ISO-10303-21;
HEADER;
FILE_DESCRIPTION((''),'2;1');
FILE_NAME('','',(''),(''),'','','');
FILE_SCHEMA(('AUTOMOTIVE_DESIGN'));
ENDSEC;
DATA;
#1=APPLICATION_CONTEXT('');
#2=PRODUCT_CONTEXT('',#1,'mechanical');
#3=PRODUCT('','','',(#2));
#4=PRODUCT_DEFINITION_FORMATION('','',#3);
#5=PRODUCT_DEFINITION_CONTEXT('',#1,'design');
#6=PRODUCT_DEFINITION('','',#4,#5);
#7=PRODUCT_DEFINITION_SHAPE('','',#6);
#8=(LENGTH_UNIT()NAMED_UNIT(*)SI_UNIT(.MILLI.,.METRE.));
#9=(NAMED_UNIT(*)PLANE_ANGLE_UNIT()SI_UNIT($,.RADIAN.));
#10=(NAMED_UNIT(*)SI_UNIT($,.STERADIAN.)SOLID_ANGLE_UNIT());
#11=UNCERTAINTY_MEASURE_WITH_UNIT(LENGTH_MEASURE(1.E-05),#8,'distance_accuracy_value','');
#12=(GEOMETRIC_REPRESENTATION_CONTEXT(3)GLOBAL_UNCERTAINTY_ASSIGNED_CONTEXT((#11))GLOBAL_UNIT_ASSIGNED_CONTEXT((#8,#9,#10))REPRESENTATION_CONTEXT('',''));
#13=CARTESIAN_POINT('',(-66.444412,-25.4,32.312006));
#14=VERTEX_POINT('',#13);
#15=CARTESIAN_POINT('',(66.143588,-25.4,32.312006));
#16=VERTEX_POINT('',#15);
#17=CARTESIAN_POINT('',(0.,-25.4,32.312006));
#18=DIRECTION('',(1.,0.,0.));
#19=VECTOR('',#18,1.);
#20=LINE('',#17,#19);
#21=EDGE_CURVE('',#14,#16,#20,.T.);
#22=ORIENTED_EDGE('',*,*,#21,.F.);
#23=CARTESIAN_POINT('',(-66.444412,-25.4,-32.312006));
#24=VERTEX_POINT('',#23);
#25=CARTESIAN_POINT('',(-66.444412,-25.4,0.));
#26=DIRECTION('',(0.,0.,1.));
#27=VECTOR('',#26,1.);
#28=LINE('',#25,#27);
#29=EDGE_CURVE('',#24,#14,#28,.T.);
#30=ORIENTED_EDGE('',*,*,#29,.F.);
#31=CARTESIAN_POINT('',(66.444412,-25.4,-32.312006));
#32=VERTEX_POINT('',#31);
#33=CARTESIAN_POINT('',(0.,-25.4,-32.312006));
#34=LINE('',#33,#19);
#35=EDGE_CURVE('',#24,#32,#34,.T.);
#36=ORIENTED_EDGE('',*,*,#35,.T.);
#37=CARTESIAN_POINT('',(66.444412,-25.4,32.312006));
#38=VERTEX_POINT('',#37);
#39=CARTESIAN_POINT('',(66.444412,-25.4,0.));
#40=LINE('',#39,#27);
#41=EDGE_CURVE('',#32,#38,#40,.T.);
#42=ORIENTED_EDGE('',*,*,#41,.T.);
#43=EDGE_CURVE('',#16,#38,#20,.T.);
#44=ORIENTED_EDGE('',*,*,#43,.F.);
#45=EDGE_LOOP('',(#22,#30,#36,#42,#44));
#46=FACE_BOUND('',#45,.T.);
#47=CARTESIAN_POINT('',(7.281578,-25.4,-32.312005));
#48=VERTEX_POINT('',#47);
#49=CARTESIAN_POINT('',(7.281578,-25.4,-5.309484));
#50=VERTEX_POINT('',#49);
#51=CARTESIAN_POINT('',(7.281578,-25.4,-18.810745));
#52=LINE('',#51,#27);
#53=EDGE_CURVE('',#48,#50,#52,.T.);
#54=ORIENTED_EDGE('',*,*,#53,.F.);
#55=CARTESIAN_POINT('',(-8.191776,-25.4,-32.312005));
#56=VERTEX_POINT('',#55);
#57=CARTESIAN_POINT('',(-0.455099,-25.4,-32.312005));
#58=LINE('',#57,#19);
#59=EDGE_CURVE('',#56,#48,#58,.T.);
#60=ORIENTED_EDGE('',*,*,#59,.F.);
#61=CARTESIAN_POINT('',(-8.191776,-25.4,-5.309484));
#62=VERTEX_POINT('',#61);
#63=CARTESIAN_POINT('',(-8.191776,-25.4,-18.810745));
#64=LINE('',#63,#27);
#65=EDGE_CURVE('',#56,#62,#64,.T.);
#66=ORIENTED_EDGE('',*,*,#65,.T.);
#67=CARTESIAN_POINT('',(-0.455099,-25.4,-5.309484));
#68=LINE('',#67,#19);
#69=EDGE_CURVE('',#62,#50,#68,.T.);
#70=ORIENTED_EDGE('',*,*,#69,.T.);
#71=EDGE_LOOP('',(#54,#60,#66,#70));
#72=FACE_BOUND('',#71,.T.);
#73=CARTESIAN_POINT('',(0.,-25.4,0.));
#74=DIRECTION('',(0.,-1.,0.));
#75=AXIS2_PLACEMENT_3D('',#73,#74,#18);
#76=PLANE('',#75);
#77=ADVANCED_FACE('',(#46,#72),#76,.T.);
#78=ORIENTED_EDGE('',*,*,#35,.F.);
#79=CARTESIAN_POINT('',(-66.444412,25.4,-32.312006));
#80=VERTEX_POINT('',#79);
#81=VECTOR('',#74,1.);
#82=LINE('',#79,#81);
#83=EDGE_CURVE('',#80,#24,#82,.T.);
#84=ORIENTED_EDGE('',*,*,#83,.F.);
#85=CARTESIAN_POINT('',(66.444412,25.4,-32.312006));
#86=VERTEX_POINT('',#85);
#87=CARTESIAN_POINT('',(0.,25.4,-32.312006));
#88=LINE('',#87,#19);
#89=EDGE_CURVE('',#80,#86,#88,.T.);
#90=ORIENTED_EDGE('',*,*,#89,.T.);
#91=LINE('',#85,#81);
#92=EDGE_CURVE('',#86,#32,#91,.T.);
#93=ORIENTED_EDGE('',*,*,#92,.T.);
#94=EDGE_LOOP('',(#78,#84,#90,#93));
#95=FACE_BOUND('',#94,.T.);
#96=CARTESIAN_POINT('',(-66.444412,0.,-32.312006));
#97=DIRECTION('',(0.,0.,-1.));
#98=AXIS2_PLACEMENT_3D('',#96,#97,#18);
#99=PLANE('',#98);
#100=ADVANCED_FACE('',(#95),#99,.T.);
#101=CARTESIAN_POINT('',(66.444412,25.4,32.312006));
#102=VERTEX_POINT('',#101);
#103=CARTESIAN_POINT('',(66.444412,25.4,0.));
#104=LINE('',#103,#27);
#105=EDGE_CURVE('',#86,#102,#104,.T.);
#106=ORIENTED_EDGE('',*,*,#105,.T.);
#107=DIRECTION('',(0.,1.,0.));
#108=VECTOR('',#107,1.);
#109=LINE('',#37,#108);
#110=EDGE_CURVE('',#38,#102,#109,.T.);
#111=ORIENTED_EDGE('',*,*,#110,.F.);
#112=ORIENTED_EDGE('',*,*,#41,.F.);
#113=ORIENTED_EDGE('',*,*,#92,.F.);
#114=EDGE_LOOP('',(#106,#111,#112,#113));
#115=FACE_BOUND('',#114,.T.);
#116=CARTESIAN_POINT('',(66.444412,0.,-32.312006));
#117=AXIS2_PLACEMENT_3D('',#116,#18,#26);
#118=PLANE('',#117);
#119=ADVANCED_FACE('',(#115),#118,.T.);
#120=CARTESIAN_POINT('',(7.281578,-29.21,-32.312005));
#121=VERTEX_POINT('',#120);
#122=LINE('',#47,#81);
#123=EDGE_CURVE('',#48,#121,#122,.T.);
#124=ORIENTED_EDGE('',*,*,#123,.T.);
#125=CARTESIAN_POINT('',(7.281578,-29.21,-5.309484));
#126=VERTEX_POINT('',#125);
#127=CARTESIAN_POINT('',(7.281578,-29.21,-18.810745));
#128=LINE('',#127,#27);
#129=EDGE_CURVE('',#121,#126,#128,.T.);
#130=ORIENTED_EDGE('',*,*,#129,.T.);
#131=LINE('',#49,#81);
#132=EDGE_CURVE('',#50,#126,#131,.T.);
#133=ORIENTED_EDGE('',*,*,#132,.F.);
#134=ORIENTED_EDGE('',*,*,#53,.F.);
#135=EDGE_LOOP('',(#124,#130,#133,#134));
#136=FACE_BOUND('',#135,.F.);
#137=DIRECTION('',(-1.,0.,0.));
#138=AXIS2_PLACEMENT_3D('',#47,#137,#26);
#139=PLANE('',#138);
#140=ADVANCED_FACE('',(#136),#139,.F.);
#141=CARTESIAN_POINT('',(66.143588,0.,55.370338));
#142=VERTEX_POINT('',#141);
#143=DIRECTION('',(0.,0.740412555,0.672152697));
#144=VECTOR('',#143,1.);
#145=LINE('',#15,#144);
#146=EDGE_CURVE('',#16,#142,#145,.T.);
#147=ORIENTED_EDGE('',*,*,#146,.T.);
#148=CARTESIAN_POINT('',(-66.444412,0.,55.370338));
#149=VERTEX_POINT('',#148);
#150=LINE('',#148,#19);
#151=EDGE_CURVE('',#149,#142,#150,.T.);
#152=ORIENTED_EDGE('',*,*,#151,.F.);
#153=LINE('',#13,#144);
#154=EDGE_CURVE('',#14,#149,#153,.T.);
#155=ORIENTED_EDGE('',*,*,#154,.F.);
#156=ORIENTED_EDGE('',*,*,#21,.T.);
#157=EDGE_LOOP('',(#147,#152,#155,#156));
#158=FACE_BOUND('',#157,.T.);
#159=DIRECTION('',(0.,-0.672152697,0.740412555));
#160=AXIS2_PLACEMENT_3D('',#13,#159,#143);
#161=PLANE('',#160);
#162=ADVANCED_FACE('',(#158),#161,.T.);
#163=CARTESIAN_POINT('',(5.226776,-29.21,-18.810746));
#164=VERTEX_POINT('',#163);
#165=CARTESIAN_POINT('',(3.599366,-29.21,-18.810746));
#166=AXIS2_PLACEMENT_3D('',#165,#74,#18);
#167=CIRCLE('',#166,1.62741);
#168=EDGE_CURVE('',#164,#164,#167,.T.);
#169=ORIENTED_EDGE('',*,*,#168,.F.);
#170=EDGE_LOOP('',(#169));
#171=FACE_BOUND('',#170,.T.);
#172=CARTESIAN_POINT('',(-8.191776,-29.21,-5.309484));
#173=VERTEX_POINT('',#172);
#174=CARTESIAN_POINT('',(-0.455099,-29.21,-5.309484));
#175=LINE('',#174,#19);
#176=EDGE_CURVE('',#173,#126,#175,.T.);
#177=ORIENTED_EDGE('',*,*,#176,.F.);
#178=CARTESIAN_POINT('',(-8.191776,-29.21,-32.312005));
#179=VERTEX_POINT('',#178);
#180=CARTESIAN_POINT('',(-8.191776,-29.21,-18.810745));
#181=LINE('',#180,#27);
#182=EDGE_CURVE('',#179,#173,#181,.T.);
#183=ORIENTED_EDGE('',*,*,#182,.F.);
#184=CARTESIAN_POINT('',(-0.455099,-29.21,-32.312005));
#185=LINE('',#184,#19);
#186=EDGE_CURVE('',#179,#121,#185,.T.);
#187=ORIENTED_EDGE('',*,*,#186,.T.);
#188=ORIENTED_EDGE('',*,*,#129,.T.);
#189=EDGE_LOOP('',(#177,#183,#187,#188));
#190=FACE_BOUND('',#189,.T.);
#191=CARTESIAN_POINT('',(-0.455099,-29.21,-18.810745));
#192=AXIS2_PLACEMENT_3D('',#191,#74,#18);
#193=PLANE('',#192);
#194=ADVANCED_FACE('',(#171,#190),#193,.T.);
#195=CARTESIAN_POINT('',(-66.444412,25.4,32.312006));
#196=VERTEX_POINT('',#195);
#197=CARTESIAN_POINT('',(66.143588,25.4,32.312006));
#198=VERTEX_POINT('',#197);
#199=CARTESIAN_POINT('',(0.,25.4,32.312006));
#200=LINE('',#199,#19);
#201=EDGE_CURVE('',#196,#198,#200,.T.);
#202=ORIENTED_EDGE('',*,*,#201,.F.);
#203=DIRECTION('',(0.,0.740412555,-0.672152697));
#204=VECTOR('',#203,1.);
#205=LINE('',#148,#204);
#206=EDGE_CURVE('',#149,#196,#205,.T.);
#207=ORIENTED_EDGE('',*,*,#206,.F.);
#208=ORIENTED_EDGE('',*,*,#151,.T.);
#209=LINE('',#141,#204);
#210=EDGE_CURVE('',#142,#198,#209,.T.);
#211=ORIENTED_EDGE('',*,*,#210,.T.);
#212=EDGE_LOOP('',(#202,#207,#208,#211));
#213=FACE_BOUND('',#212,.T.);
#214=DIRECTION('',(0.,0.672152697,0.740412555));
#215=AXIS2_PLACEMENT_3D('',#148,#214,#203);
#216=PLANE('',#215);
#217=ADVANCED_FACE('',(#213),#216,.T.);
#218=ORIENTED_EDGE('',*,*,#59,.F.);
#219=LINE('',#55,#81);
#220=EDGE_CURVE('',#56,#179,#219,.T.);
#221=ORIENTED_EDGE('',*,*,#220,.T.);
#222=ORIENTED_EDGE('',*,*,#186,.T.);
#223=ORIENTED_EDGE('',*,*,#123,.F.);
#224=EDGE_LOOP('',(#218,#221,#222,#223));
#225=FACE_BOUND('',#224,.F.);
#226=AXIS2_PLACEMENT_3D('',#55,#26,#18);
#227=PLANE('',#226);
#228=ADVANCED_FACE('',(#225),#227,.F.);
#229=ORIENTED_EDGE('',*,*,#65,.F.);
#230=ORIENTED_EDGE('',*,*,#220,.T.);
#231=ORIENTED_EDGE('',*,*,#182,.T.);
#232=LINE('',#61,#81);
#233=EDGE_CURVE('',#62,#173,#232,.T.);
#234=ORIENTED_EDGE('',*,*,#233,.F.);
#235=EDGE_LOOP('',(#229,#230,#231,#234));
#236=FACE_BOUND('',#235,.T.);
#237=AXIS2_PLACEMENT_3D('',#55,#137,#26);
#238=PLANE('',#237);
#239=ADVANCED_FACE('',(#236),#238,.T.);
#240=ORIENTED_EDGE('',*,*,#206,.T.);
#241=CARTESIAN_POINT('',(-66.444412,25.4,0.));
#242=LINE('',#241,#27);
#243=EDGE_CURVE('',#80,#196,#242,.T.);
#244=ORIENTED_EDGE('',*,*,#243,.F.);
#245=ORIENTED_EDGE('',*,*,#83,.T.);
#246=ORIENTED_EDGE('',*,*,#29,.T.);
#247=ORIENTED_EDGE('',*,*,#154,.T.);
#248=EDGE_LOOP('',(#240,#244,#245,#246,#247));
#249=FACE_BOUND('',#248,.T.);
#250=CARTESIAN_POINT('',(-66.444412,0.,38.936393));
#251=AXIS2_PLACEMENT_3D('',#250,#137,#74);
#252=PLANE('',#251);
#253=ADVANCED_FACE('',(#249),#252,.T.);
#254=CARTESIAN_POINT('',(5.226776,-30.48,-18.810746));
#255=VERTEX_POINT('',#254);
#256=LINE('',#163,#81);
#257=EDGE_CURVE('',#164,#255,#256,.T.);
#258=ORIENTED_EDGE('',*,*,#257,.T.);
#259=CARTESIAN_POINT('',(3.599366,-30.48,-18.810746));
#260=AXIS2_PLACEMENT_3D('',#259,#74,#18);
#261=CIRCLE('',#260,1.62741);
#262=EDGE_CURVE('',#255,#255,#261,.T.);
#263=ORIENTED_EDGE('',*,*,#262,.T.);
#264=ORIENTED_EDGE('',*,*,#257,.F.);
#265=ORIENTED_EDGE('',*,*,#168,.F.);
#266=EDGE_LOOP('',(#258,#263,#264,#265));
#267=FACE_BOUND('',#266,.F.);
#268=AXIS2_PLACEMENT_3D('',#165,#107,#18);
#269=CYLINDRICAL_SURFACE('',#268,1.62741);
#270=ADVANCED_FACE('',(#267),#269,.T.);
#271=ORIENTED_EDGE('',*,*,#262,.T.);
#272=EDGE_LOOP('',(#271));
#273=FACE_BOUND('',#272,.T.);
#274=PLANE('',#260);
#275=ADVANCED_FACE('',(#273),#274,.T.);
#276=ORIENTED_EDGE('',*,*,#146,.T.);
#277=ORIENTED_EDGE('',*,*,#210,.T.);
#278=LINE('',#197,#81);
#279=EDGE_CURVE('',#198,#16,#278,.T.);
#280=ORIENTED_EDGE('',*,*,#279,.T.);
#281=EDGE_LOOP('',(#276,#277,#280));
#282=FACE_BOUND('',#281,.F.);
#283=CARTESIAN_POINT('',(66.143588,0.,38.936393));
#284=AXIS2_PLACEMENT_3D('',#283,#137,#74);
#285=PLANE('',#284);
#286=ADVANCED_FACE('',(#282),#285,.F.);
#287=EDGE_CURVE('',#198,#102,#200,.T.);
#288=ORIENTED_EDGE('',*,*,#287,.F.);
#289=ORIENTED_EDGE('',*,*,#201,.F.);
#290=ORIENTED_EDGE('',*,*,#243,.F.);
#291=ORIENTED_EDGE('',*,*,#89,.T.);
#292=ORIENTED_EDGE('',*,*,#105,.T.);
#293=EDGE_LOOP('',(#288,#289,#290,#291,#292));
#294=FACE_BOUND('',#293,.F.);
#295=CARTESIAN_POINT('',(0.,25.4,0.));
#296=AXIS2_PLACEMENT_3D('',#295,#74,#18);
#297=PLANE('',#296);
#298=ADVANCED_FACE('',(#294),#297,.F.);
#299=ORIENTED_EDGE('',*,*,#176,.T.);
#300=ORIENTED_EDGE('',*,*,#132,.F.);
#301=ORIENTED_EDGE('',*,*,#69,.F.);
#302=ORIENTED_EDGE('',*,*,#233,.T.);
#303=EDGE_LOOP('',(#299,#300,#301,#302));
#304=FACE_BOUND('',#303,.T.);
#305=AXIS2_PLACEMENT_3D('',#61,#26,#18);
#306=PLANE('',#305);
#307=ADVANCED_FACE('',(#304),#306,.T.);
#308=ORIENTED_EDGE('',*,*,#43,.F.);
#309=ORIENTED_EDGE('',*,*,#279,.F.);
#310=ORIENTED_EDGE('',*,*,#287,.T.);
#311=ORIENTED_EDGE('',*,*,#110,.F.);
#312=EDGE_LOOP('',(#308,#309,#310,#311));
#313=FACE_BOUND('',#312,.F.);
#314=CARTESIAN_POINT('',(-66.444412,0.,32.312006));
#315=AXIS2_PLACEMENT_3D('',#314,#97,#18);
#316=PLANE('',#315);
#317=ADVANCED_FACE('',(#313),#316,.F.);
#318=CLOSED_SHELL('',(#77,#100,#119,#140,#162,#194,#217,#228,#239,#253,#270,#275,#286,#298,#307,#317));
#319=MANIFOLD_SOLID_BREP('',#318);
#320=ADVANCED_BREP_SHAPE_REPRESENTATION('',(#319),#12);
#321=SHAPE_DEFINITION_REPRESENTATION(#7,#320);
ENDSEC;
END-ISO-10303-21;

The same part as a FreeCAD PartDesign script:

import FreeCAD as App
import Part
import Sketcher

V = App.Vector
Q = App.Units.Quantity

doc = App.newDocument("Part")
body = doc.addObject("PartDesign::Body", "Body")

sketch1 = body.newObject("Sketcher::SketchObject", "Sketch")
sketch1.AttachmentSupport = (doc.getObject("XZ_Plane"), [""])
sketch1.MapMode = "FlatFace"
sketch1.addGeometry([
    Part.LineSegment(V(-66, 32, 0), V(-66, -32, 0)),
    Part.LineSegment(V(-66, -32, 0), V(66, -32, 0)),
    Part.LineSegment(V(66, -32, 0), V(66, 32, 0)),
    Part.LineSegment(V(66, 32, 0), V(-66, 32, 0)),
], False)
sketch1.addConstraint([
    Sketcher.Constraint("Coincident", 0, 2, 1, 1),
    Sketcher.Constraint("Coincident", 1, 2, 2, 1),
    Sketcher.Constraint("Coincident", 2, 2, 3, 1),
    Sketcher.Constraint("Coincident", 3, 2, 0, 1),
    Sketcher.Constraint("Vertical", 0),
    Sketcher.Constraint("Horizontal", 1),
    Sketcher.Constraint("Vertical", 2),
    Sketcher.Constraint("Horizontal", 3),
    Sketcher.Constraint("Symmetric", 0, 2, 2, 2, -1, 1),
    Sketcher.Constraint("DistanceY", 0, 2, 0, 1, 64.624012),
    Sketcher.Constraint("DistanceX", 1, 1, 1, 2, 132.888824),
])
pad1 = body.newObject("PartDesign::Pad", "Pad")
pad1.Profile = sketch1
pad1.Length = Q("2 in")
pad1.Midplane = True

sketch2 = body.newObject("Sketcher::SketchObject", "Sketch001")
sketch2.AttachmentSupport = (doc.getObject("XZ_Plane"), [""])
sketch2.MapMode = "FlatFace"
sketch2.AttachmentOffset = App.Placement(V(0, 0, 1 * 25.4), App.Rotation())
sketch2.addGeometry([
    Part.LineSegment(V(-8, -5, 0), V(-8, -32, 0)),
    Part.LineSegment(V(-8, -32, 0), V(7, -32, 0)),
    Part.LineSegment(V(7, -32, 0), V(7, -5, 0)),
    Part.LineSegment(V(7, -5, 0), V(-8, -5, 0)),
], False)
sketch2.addConstraint([
    Sketcher.Constraint("Coincident", 0, 2, 1, 1),
    Sketcher.Constraint("Coincident", 1, 2, 2, 1),
    Sketcher.Constraint("Coincident", 2, 2, 3, 1),
    Sketcher.Constraint("Coincident", 3, 2, 0, 1),
    Sketcher.Constraint("Vertical", 0),
    Sketcher.Constraint("Horizontal", 1),
    Sketcher.Constraint("Vertical", 2),
    Sketcher.Constraint("Horizontal", 3),
    Sketcher.Constraint("DistanceY", 0, 2, 0, 1, 27.002521),
    Sketcher.Constraint("DistanceX", 1, 1, 1, 2, 15.473353),
    Sketcher.Constraint("DistanceX", 0, 2, -1, 1, 8.191776),
    Sketcher.Constraint("DistanceY", 0, 2, -1, 1, 32.312005),
])
pad2 = body.newObject("PartDesign::Pad", "Pad001")
pad2.Profile = sketch2
pad2.Length = Q("0.15 in")

sketch3 = body.newObject("Sketcher::SketchObject", "Sketch002")
sketch3.AttachmentSupport = (doc.getObject("XZ_Plane"), [""])
sketch3.MapMode = "FlatFace"
sketch3.AttachmentOffset = App.Placement(V(0, 0, 1.15 * 25.4), App.Rotation())
sketch3.addGeometry(Part.Circle(V(3.6, -18.8, 0), V(0, 0, 1), 1.6), False)
sketch3.addConstraint([
    Sketcher.Constraint("Diameter", 0, 3.25482),
    Sketcher.Constraint("DistanceX", -1, 1, 0, 3, 3.599366),
    Sketcher.Constraint("DistanceY", 0, 3, -1, 1, 18.810746),
])
pad3 = body.newObject("PartDesign::Pad", "Pad002")
pad3.Profile = sketch3
pad3.Length = Q("0.05 in")

sketch4 = body.newObject("Sketcher::SketchObject", "Sketch003")
sketch4.AttachmentSupport = (doc.getObject("YZ_Plane"), [""])
sketch4.MapMode = "FlatFace"
sketch4.AttachmentOffset = App.Placement(V(0, 0, -66.444412), App.Rotation())
sketch4.addGeometry([
    Part.LineSegment(V(-25, 32, 0), V(0, 55, 0)),
    Part.LineSegment(V(0, 55, 0), V(25, 32, 0)),
    Part.LineSegment(V(25, 32, 0), V(-25, 32, 0)),
], False)
sketch4.addConstraint([
    Sketcher.Constraint("Coincident", 0, 2, 1, 1),
    Sketcher.Constraint("Coincident", 1, 2, 2, 1),
    Sketcher.Constraint("Coincident", 2, 2, 0, 1),
    Sketcher.Constraint("Horizontal", 2),
    Sketcher.Constraint("PointOnObject", 0, 2, -2),
    Sketcher.Constraint("Equal", 0, 1),
    Sketcher.Constraint("DistanceX", 2, 2, 2, 1, Q("2 in")),
    Sketcher.Constraint("Distance", 0, 34.305199),
    Sketcher.Constraint("DistanceY", -1, 1, 0, 2, 55.370338),
])
pad4 = body.newObject("PartDesign::Pad", "Pad003")
pad4.Profile = sketch4
pad4.Length = Q("5.22 in")

doc.recompute()
